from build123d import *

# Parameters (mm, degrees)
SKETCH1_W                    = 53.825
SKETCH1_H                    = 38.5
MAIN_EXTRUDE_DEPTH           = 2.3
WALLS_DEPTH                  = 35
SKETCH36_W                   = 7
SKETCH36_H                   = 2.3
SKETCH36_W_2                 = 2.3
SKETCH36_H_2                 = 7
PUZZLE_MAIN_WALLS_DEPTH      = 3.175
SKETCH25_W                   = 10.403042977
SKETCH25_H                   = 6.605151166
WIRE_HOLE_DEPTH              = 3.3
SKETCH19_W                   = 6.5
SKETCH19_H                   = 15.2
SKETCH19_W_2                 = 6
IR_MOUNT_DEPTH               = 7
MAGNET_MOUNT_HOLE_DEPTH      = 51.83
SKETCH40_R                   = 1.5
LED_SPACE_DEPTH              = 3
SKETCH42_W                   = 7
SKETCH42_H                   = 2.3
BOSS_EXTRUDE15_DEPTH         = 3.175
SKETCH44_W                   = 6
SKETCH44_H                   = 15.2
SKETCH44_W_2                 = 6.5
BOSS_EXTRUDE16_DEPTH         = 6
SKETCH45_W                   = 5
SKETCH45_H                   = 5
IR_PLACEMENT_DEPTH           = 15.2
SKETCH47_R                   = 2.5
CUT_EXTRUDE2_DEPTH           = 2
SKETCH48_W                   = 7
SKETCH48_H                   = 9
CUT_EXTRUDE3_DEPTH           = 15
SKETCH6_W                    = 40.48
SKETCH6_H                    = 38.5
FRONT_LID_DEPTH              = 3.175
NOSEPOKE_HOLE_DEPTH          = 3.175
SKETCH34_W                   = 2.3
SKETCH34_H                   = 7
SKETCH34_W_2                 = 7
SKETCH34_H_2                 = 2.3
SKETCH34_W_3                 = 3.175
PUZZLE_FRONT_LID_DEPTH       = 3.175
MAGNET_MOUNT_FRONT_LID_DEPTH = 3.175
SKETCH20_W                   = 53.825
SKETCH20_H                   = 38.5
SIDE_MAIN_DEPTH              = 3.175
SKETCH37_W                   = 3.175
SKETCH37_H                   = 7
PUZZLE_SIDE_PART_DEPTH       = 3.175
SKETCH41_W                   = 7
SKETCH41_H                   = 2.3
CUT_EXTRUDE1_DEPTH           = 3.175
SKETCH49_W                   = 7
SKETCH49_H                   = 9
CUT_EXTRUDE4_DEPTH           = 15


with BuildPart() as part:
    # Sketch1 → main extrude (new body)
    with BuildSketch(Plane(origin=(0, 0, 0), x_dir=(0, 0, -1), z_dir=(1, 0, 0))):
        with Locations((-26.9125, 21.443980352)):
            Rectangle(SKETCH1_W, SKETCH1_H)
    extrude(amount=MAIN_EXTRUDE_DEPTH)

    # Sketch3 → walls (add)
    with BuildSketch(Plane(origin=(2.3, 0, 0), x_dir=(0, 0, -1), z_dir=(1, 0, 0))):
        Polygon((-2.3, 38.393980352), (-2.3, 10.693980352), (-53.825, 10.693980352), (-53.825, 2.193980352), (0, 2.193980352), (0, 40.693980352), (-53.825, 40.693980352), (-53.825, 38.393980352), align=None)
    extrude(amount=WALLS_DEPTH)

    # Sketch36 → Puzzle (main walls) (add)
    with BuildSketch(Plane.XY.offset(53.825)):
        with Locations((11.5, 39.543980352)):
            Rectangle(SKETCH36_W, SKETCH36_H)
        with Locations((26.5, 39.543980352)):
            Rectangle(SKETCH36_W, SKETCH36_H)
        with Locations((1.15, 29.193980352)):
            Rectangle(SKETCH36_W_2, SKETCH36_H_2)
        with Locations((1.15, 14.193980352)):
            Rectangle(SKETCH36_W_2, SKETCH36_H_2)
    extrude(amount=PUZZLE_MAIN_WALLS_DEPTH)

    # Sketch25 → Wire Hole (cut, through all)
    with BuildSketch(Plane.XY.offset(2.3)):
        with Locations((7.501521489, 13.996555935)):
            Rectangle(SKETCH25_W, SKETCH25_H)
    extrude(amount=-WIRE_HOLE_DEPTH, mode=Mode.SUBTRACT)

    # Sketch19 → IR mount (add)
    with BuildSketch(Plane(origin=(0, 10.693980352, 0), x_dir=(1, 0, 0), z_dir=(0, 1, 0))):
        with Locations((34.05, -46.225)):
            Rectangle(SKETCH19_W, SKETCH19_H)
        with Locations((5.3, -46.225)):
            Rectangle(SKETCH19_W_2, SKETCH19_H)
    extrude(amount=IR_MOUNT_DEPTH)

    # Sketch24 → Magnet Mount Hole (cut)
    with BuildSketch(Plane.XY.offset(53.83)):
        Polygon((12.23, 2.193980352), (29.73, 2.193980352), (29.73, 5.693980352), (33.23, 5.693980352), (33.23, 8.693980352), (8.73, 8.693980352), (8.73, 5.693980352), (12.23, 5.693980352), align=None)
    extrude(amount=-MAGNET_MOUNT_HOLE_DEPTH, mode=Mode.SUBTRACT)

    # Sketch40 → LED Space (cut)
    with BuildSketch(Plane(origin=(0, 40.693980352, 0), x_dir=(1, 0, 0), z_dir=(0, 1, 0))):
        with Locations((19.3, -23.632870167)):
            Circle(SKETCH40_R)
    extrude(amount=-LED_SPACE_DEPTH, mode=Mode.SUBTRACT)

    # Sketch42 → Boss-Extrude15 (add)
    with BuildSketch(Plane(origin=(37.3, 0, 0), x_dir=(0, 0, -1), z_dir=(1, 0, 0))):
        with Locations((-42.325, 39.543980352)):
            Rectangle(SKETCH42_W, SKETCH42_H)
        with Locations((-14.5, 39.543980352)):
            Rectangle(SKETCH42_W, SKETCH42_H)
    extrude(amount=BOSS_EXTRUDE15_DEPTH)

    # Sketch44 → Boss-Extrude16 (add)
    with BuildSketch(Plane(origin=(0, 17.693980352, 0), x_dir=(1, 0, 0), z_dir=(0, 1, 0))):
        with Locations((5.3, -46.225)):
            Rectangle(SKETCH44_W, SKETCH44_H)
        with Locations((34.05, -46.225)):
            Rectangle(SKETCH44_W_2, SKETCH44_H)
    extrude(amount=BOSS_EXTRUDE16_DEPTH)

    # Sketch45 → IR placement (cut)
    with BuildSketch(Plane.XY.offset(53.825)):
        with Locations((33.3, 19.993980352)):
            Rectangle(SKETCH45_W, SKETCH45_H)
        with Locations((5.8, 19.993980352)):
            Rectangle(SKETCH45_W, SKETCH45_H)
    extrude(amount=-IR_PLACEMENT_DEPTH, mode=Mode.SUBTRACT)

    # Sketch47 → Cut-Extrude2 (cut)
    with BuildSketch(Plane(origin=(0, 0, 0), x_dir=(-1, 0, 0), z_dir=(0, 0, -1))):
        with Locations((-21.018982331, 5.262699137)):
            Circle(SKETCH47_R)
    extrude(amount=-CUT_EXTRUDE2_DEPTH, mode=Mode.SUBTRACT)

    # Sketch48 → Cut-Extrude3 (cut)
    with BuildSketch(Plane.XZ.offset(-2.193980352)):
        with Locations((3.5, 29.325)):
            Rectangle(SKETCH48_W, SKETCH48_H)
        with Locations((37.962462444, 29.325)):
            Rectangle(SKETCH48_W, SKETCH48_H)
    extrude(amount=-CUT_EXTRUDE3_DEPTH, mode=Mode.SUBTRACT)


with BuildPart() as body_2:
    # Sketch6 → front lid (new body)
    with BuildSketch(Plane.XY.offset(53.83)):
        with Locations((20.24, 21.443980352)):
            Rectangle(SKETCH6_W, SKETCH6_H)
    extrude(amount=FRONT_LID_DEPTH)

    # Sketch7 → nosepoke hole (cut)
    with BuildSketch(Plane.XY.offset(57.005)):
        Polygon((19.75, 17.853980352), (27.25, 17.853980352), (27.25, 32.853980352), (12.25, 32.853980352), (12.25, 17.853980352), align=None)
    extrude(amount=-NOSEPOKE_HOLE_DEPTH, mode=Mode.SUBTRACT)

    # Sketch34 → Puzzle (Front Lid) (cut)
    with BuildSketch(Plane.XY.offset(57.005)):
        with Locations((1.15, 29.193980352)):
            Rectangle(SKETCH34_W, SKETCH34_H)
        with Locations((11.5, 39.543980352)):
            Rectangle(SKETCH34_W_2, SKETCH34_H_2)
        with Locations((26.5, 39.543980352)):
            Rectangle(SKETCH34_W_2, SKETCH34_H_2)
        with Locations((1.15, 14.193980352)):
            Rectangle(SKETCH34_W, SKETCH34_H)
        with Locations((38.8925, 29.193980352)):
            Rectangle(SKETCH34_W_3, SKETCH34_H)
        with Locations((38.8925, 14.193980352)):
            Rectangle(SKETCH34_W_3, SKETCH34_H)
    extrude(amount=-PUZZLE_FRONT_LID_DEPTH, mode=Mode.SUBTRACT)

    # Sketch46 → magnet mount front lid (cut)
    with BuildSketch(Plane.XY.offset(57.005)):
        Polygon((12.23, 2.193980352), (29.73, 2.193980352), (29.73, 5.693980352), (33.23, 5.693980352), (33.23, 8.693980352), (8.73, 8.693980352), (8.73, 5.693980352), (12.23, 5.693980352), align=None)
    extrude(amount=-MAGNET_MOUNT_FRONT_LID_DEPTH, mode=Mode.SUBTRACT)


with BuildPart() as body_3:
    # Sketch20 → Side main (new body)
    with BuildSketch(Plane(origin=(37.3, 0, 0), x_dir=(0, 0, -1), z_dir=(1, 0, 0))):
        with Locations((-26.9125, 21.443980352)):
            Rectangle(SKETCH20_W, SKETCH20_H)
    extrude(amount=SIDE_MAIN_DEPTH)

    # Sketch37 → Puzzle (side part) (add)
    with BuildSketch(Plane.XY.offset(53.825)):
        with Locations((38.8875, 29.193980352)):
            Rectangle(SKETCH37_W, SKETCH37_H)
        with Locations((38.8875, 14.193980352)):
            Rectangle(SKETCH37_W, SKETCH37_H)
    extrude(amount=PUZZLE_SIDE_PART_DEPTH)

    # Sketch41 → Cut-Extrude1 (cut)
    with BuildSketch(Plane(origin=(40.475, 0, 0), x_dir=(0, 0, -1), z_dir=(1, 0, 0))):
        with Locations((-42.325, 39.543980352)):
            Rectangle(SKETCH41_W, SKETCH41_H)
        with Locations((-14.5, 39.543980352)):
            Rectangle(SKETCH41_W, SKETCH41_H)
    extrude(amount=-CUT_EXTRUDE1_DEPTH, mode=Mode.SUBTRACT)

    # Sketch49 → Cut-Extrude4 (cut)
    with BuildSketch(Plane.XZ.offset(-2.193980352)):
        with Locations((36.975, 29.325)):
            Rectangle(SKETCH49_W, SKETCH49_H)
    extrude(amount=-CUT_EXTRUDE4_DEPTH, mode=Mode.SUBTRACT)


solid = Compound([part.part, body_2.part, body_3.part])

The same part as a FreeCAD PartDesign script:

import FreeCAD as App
import Part
import Sketcher


def add_polygon(sketch, points):
    """Adds a closed chain of lines whose ends are joined by coincident constraints."""
    first, n = sketch.GeometryCount, len(points)
    for a, b in zip(points, points[1:] + points[:1]):
        sketch.addGeometry(Part.LineSegment(App.Vector(*a, 0), App.Vector(*b, 0)), False)
    for i in range(n):
        sketch.addConstraint(Sketcher.Constraint("Coincident", first + i, 2, first + (i + 1) % n, 1))

doc = App.newDocument("Part")
body = doc.addObject("PartDesign::Body", "Body")

# Sketch on YZ plane
sketch1 = doc.addObject("Sketcher::SketchObject", "Sketch")
body.addObject(sketch1)
sketch1.AttachmentSupport = (doc.YZ_Plane, [""])
sketch1.MapMode = "FlatFace"
add_polygon(sketch1, [(41, 54), (2, 54), (2, 0), (41, 0)])  # lines 0-3
sketch1.addConstraint([
    Sketcher.Constraint("Horizontal", 0),
    Sketcher.Constraint("Vertical", 1),
    Sketcher.Constraint("Horizontal", 2),
    Sketcher.Constraint("Vertical", 3),
    Sketcher.Constraint("PointOnObject", 1, 2, -1),
    Sketcher.Constraint("DistanceX", 0, 2, 0, 1, 38.5),
    Sketcher.Constraint("DistanceY", 1, 2, 1, 1, 53.825),
    Sketcher.Constraint("DistanceX", -1, 1, 0, 2, 2.19398),
])
pad1 = doc.addObject("PartDesign::Pad", "Pad")
body.addObject(pad1)
pad1.Profile = sketch1
pad1.Length = 2.3

# Sketch on YZ plane
sketch2 = doc.addObject("Sketcher::SketchObject", "Sketch001")
body.addObject(sketch2)
sketch2.AttachmentSupport = (doc.YZ_Plane, [""])
sketch2.MapMode = "FlatFace"
sketch2.AttachmentOffset = App.Placement(App.Vector(0, 0, 2.3), App.Rotation())
add_polygon(sketch2, [(38.4, 2.3), (10.7, 2.3), (10.7, 53.8), (2.2, 53.8), (2.2, 0), (40.7, 0), (40.7, 53.8), (38.4, 53.8)])  # lines 0-7
sketch2.addConstraint([
    Sketcher.Constraint("Horizontal", 0),
    Sketcher.Constraint("Vertical", 1),
    Sketcher.Constraint("Horizontal", 2),
    Sketcher.Constraint("Vertical", 3),
    Sketcher.Constraint("Horizontal", 4),
    Sketcher.Constraint("Vertical", 5),
    Sketcher.Constraint("Horizontal", 6),
    Sketcher.Constraint("Vertical", 7),
    Sketcher.Constraint("PointOnObject", 3, 2, -1),
    Sketcher.Constraint("Horizontal", 2, 2, 5, 2),
    Sketcher.Constraint("DistanceX", 0, 2, 0, 1, 27.7),
    Sketcher.Constraint("DistanceX", 2, 2, 2, 1, 8.5),
    Sketcher.Constraint("DistanceX", 4, 1, 4, 2, 38.5),
    Sketcher.Constraint("DistanceY", -1, 1, 0, 2, 2.3),
    Sketcher.Constraint("DistanceY", 1, 1, 1, 2, 51.525),
    Sketcher.Constraint("DistanceX", -1, 1, 0, 2, 10.69398),
])
pad2 = doc.addObject("PartDesign::Pad", "Pad001")
body.addObject(pad2)
pad2.Profile = sketch2
pad2.Length = 35

# Sketch on XY plane
sketch3 = doc.addObject("Sketcher::SketchObject", "Sketch002")
body.addObject(sketch3)
sketch3.AttachmentSupport = (doc.XY_Plane, [""])
sketch3.MapMode = "FlatFace"
sketch3.AttachmentOffset = App.Placement(App.Vector(0, 0, 53.825), App.Rotation())
add_polygon(sketch3, [(8, 40.7), (8, 38.4), (15, 38.4), (15, 40.7)])  # lines 0-3
add_polygon(sketch3, [(23, 40.7), (23, 38.4), (30, 38.4), (30, 40.7)])  # lines 4-7
add_polygon(sketch3, [(0, 32.7), (0, 25.7), (2.3, 25.7), (2.3, 32.7)])  # lines 8-11
add_polygon(sketch3, [(0, 17.7), (0, 10.7), (2.3, 10.7), (2.3, 17.7)])  # lines 12-15
sketch3.addConstraint([
    Sketcher.Constraint("Vertical", 0),
    Sketcher.Constraint("Horizontal", 1),
    Sketcher.Constraint("Vertical", 2),
    Sketcher.Constraint("Horizontal", 3),
    Sketcher.Constraint("Vertical", 4),
    Sketcher.Constraint("Horizontal", 5),
    Sketcher.Constraint("Vertical", 6),
    Sketcher.Constraint("Horizontal", 7),
    Sketcher.Constraint("Vertical", 8),
    Sketcher.Constraint("Horizontal", 9),
    Sketcher.Constraint("Vertical", 10),
    Sketcher.Constraint("Horizontal", 11),
    Sketcher.Constraint("Vertical", 12),
    Sketcher.Constraint("Horizontal", 13),
    Sketcher.Constraint("Vertical", 14),
    Sketcher.Constraint("Horizontal", 15),
    Sketcher.Constraint("PointOnObject", 8, 2, -2),
    Sketcher.Constraint("PointOnObject", 12, 2, -2),
    Sketcher.Constraint("Horizontal", 1, 2, 4, 2),
    Sketcher.Constraint("Horizontal", 3, 2, 6, 2),
    Sketcher.Constraint("Vertical", 10, 2, 13, 2),
    Sketcher.Constraint("Equal", 3, 5),
    Sketcher.Constraint("Equal", 15, 0),
    Sketcher.Constraint("Equal", 7, 8),
    Sketcher.Constraint("Equal", 10, 12),
    Sketcher.Constraint("DistanceX", 1, 1, 1, 2, 7.0),
    Sketcher.Constraint("DistanceX", 9, 1, 9, 2, 2.3),
    Sketcher.Constraint("DistanceX", -1, 1, 0, 2, 8.0),
    Sketcher.Constraint("DistanceX", -1, 1, 4, 2, 23.0),
    Sketcher.Constraint("DistanceY", 8, 2, 3, 2, 15.0),
    Sketcher.Constraint("DistanceY", 12, 2, 8, 2, 15.0),
    Sketcher.Constraint("DistanceY", -1, 1, 0, 2, 38.39398),
])
pad3 = doc.addObject("PartDesign::Pad", "Pad002")
body.addObject(pad3)
pad3.Profile = sketch3
pad3.Length = 3.175

# Sketch on XY plane
sketch4 = doc.addObject("Sketcher::SketchObject", "Sketch003")
body.addObject(sketch4)
sketch4.AttachmentSupport = (doc.XY_Plane, [""])
sketch4.MapMode = "FlatFace"
sketch4.AttachmentOffset = App.Placement(App.Vector(0, 0, 2.3), App.Rotation())
add_polygon(sketch4, [(2, 17), (2, 11), (13, 11), (13, 17)])  # lines 0-3
sketch4.addConstraint([
    Sketcher.Constraint("Vertical", 0),
    Sketcher.Constraint("Horizontal", 1),
    Sketcher.Constraint("Vertical", 2),
    Sketcher.Constraint("Horizontal", 3),
    Sketcher.Constraint("DistanceX", -1, 1, 0, 2, 2.3),
    Sketcher.Constraint("DistanceY", 0, 2, 0, 1, 6.605151),
    Sketcher.Constraint("DistanceX", 1, 1, 1, 2, 10.403043),
    Sketcher.Constraint("DistanceY", -1, 1, 0, 2, 10.69398),
])
pocket1 = doc.addObject("PartDesign::Pocket", "Pocket")
body.addObject(pocket1)
pocket1.Profile = sketch4
pocket1.Type = "ThroughAll"

# Sketch on XZ plane
sketch5 = doc.addObject("Sketcher::SketchObject", "Sketch004")
body.addObject(sketch5)
sketch5.AttachmentSupport = (doc.XZ_Plane, [""])
sketch5.MapMode = "FlatFace"
sketch5.AttachmentOffset = App.Placement(App.Vector(0, 0, -10.69398), App.Rotation())
add_polygon(sketch5, [(31, 39), (31, 54), (37, 54), (37, 39)])  # lines 0-3
add_polygon(sketch5, [(2, 39), (2, 54), (8, 54), (8, 39)])  # lines 4-7
sketch5.addConstraint([
    Sketcher.Constraint("Vertical", 0),
    Sketcher.Constraint("Horizontal", 1),
    Sketcher.Constraint("Vertical", 2),
    Sketcher.Constraint("Horizontal", 3),
    Sketcher.Constraint("Vertical", 4),
    Sketcher.Constraint("Horizontal", 5),
    Sketcher.Constraint("Vertical", 6),
    Sketcher.Constraint("Horizontal", 7),
    Sketcher.Constraint("Horizontal", 1, 2, 4, 2),
    Sketcher.Constraint("Horizontal", 3, 2, 6, 2),
    Sketcher.Constraint("DistanceX", 5, 1, 5, 2, 6.0),
    Sketcher.Constraint("DistanceX", 1, 1, 1, 2, 6.5),
    Sketcher.Constraint("DistanceY", 0, 1, 0, 2, 15.2),
    Sketcher.Constraint("DistanceX", 4, 2, 1, 2, 35.0),
    Sketcher.Constraint("DistanceX", -1, 1, 0, 2, 30.8),
    Sketcher.Constraint("DistanceY", -1, 1, 0, 2, 53.825),
])
pad4 = doc.addObject("PartDesign::Pad", "Pad003")
body.addObject(pad4)
pad4.Profile = sketch5
pad4.Length = 7
pad4.Reversed = True

# Sketch on XY plane
sketch6 = doc.addObject("Sketcher::SketchObject", "Sketch005")
body.addObject(sketch6)
sketch6.AttachmentSupport = (doc.XY_Plane, [""])
sketch6.MapMode = "FlatFace"
sketch6.AttachmentOffset = App.Placement(App.Vector(0, 0, 53.83), App.Rotation())
add_polygon(sketch6, [(12.2, 2.2), (29.7, 2.2), (29.7, 5.7), (33.2, 5.7), (33.2, 8.7), (8.7, 8.7), (8.7, 5.7), (12.2, 5.7)])  # lines 0-7
sketch6.addConstraint([
    Sketcher.Constraint("Horizontal", 0),
    Sketcher.Constraint("Vertical", 1),
    Sketcher.Constraint("Horizontal", 2),
    Sketcher.Constraint("Vertical", 3),
    Sketcher.Constraint("Horizontal", 4),
    Sketcher.Constraint("Vertical", 5),
    Sketcher.Constraint("Horizontal", 6),
    Sketcher.Constraint("Vertical", 7),
    Sketcher.Constraint("Horizontal", 2, 2, 5, 2),
    Sketcher.Constraint("Equal", 2, 6),
    Sketcher.Constraint("Equal", 6, 1),
    Sketcher.Constraint("DistanceY", 3, 1, 3, 2, 3.0),
    Sketcher.Constraint("DistanceX", 0, 1, 0, 2, 17.5),
    Sketcher.Constraint("DistanceX", 2, 1, 2, 2, 3.5),
    Sketcher.Constraint("DistanceX", -1, 1, 0, 2, 29.73),
    Sketcher.Constraint("DistanceY", -1, 1, 0, 2, 2.19398),
])
pocket2 = doc.addObject("PartDesign::Pocket", "Pocket001")
body.addObject(pocket2)
pocket2.Profile = sketch6
pocket2.Length = 51.83

# Sketch on XZ plane
sketch7 = doc.addObject("Sketcher::SketchObject", "Sketch006")
body.addObject(sketch7)
sketch7.AttachmentSupport = (doc.XZ_Plane, [""])
sketch7.MapMode = "FlatFace"
sketch7.AttachmentOffset = App.Placement(App.Vector(0, 0, -40.69398), App.Rotation())
sketch7.addGeometry(Part.Circle(App.Vector(19.3, 23.6, 0), App.Vector(0, 0, 1), 1.5), False)
sketch7.addConstraint([
    Sketcher.Constraint("Diameter", 0, 3.0),
    Sketcher.Constraint("DistanceX", -1, 1, 0, 3, 19.3),
    Sketcher.Constraint("DistanceY", -1, 1, 0, 3, 23.63287),
])
pocket3 = doc.addObject("PartDesign::Pocket", "Pocket002")
body.addObject(pocket3)
pocket3.Profile = sketch7
pocket3.Length = 3
pocket3.Reversed = True

# Sketch on YZ plane
sketch8 = doc.addObject("Sketcher::SketchObject", "Sketch007")
body.addObject(sketch8)
sketch8.AttachmentSupport = (doc.YZ_Plane, [""])
sketch8.MapMode = "FlatFace"
sketch8.AttachmentOffset = App.Placement(App.Vector(0, 0, 37.3), App.Rotation())
add_polygon(sketch8, [(40.7, 45.8), (38.4, 45.8), (38.4, 38.8), (40.7, 38.8)])  # lines 0-3
add_polygon(sketch8, [(40.7, 18), (38.4, 18), (38.4, 11), (40.7, 11)])  # lines 4-7
sketch8.addConstraint([
    Sketcher.Constraint("Horizontal", 0),
    Sketcher.Constraint("Vertical", 1),
    Sketcher.Constraint("Horizontal", 2),
    Sketcher.Constraint("Vertical", 3),
    Sketcher.Constraint("Horizontal", 4),
    Sketcher.Constraint("Vertical", 5),
    Sketcher.Constraint("Horizontal", 6),
    Sketcher.Constraint("Vertical", 7),
    Sketcher.Constraint("Vertical", 1, 2, 4, 2),
    Sketcher.Constraint("Vertical", 3, 2, 6, 2),
    Sketcher.Constraint("Equal", 3, 5),
    Sketcher.Constraint("DistanceY", 1, 2, 1, 1, 7.0),
    Sketcher.Constraint("DistanceX", 0, 2, 0, 1, 2.3),
    Sketcher.Constraint("DistanceY", -1, 1, 4, 2, 18.0),
    Sketcher.Constraint("DistanceY", -1, 1, 0, 2, 45.825),
    Sketcher.Constraint("DistanceX", -1, 1, 0, 2, 38.39398),
])
pad5 = doc.addObject("PartDesign::Pad", "Pad004")
body.addObject(pad5)
pad5.Profile = sketch8
pad5.Length = 3.175

# Sketch on XZ plane
sketch9 = doc.addObject("Sketcher::SketchObject", "Sketch008")
body.addObject(sketch9)
sketch9.AttachmentSupport = (doc.XZ_Plane, [""])
sketch9.MapMode = "FlatFace"
sketch9.AttachmentOffset = App.Placement(App.Vector(0, 0, -17.69398), App.Rotation())
add_polygon(sketch9, [(2, 39), (2, 54), (8, 54), (8, 39)])  # lines 0-3
add_polygon(sketch9, [(31, 39), (31, 54), (37, 54), (37, 39)])  # lines 4-7
sketch9.addConstraint([
    Sketcher.Constraint("Vertical", 0),
    Sketcher.Constraint("Horizontal", 1),
    Sketcher.Constraint("Vertical", 2),
    Sketcher.Constraint("Horizontal", 3),
    Sketcher.Constraint("Vertical", 4),
    Sketcher.Constraint("Horizontal", 5),
    Sketcher.Constraint("Vertical", 6),
    Sketcher.Constraint("Horizontal", 7),
    Sketcher.Constraint("Horizontal", 1, 2, 4, 2),
    Sketcher.Constraint("Horizontal", 3, 2, 6, 2),
    Sketcher.Constraint("DistanceX", 1, 1, 1, 2, 6.0),
    Sketcher.Constraint("DistanceX", 5, 1, 5, 2, 6.5),
    Sketcher.Constraint("DistanceY", 0, 1, 0, 2, 15.2),
    Sketcher.Constraint("DistanceX", 1, 2, 5, 2, 29.0),
    Sketcher.Constraint("DistanceX", -1, 1, 0, 2, 2.3),
    Sketcher.Constraint("DistanceY", -1, 1, 0, 2, 53.825),
])
pad6 = doc.addObject("PartDesign::Pad", "Pad005")
body.addObject(pad6)
pad6.Profile = sketch9
pad6.Length = 6
pad6.Reversed = True

# Sketch on XY plane
sketch10 = doc.addObject("Sketcher::SketchObject", "Sketch009")
body.addObject(sketch10)
sketch10.AttachmentSupport = (doc.XY_Plane, [""])
sketch10.MapMode = "FlatFace"
sketch10.AttachmentOffset = App.Placement(App.Vector(0, 0, 53.825), App.Rotation())
add_polygon(sketch10, [(30.8, 22.5), (30.8, 17.5), (35.8, 17.5), (35.8, 22.5)])  # lines 0-3
add_polygon(sketch10, [(3.3, 22.5), (3.3, 17.5), (8.3, 17.5), (8.3, 22.5)])  # lines 4-7
sketch10.addConstraint([
    Sketcher.Constraint("Vertical", 0),
    Sketcher.Constraint("Horizontal", 1),
    Sketcher.Constraint("Vertical", 2),
    Sketcher.Constraint("Horizontal", 3),
    Sketcher.Constraint("Vertical", 4),
    Sketcher.Constraint("Horizontal", 5),
    Sketcher.Constraint("Vertical", 6),
    Sketcher.Constraint("Horizontal", 7),
    Sketcher.Constraint("Horizontal", 1, 2, 4, 2),
    Sketcher.Constraint("Horizontal", 3, 2, 6, 2),
    Sketcher.Constraint("Equal", 3, 5),
    Sketcher.Constraint("Equal", 7, 0),
    Sketcher.Constraint("DistanceX", 1, 1, 1, 2, 5.0),
    Sketcher.Constraint("DistanceX", -1, 1, 0, 2, 30.8),
    Sketcher.Constraint("DistanceX", -1, 1, 4, 2, 3.3),
    Sketcher.Constraint("DistanceY", -1, 1, 0, 2, 17.49398),
])
pocket4 = doc.addObject("PartDesign::Pocket", "Pocket003")
body.addObject(pocket4)
pocket4.Profile = sketch10
pocket4.Length = 15.2

# Sketch on XY plane
sketch11 = doc.addObject("Sketcher::SketchObject", "Sketch010")
body.addObject(sketch11)
sketch11.AttachmentSupport = (doc.XY_Plane, [""])
sketch11.MapMode = "FlatFace"
sketch11.addGeometry(Part.Circle(App.Vector(21, 5.3, 0), App.Vector(0, 0, 1), 2.5), False)
sketch11.addConstraint([
    Sketcher.Constraint("Diameter", 0, 5.0),
    Sketcher.Constraint("DistanceY", -1, 1, 0, 3, 5.262699),
    Sketcher.Constraint("DistanceX", -1, 1, 0, 3, 21.018982),
])
pocket5 = doc.addObject("PartDesign::Pocket", "Pocket004")
body.addObject(pocket5)
pocket5.Profile = sketch11
pocket5.Length = 2
pocket5.Reversed = True

# Sketch on XZ plane
sketch12 = doc.addObject("Sketcher::SketchObject", "Sketch011")
body.addObject(sketch12)
sketch12.AttachmentSupport = (doc.XZ_Plane, [""])
sketch12.MapMode = "FlatFace"
sketch12.AttachmentOffset = App.Placement(App.Vector(0, 0, -2.19398), App.Rotation())
add_polygon(sketch12, [(0, 34), (0, 25), (7, 25), (7, 34)])  # lines 0-3
add_polygon(sketch12, [(34, 34), (34, 25), (41, 25), (41, 34)])  # lines 4-7
sketch12.addConstraint([
    Sketcher.Constraint("Vertical", 0),
    Sketcher.Constraint("Horizontal", 1),
    Sketcher.Constraint("Vertical", 2),
    Sketcher.Constraint("Horizontal", 3),
    Sketcher.Constraint("Vertical", 4),
    Sketcher.Constraint("Horizontal", 5),
    Sketcher.Constraint("Vertical", 6),
    Sketcher.Constraint("Horizontal", 7),
    Sketcher.Constraint("PointOnObject", 0, 2, -2),
    Sketcher.Constraint("Horizontal", 1, 2, 4, 2),
    Sketcher.Constraint("Horizontal", 3, 2, 6, 2),
    Sketcher.Constraint("Equal", 3, 5),
    Sketcher.Constraint("DistanceX", 1, 1, 1, 2, 7.0),
    Sketcher.Constraint("DistanceY", 0, 2, 0, 1, 9.0),
    Sketcher.Constraint("DistanceY", -1, 1, 0, 2, 24.825),
    Sketcher.Constraint("DistanceX", -1, 1, 4, 2, 34.462462),
])
pocket6 = doc.addObject("PartDesign::Pocket", "Pocket005")
body.addObject(pocket6)
pocket6.Profile = sketch12
pocket6.Length = 15
body2 = doc.addObject("PartDesign::Body", "Body001")

# Sketch on XY plane
sketch13 = doc.addObject("Sketcher::SketchObject", "Sketch012")
body2.addObject(sketch13)
sketch13.AttachmentSupport = (doc.getObject("XY_Plane001"), [""])
sketch13.MapMode = "FlatFace"
sketch13.AttachmentOffset = App.Placement(App.Vector(0, 0, 53.83), App.Rotation())
add_polygon(sketch13, [(0, 41), (0, 2), (40, 2), (40, 41)])  # lines 0-3
sketch13.addConstraint([
    Sketcher.Constraint("Vertical", 0),
    Sketcher.Constraint("Horizontal", 1),
    Sketcher.Constraint("Vertical", 2),
    Sketcher.Constraint("Horizontal", 3),
    Sketcher.Constraint("PointOnObject", 0, 2, -2),
    Sketcher.Constraint("DistanceY", 0, 2, 0, 1, 38.5),
    Sketcher.Constraint("DistanceX", 1, 1, 1, 2, 40.48),
    Sketcher.Constraint("DistanceY", -1, 1, 0, 2, 2.19398),
])
pad7 = doc.addObject("PartDesign::Pad", "Pad006")
body2.addObject(pad7)
pad7.Profile = sketch13
pad7.Length = 3.175

# Sketch on XY plane
sketch14 = doc.addObject("Sketcher::SketchObject", "Sketch013")
body2.addObject(sketch14)
sketch14.AttachmentSupport = (doc.getObject("XY_Plane001"), [""])
sketch14.MapMode = "FlatFace"
sketch14.AttachmentOffset = App.Placement(App.Vector(0, 0, 57.005), App.Rotation())
add_polygon(sketch14, [(27, 18), (27, 33), (12, 33), (12, 18)])  # lines 0-3
sketch14.addConstraint([
    Sketcher.Constraint("Vertical", 0),
    Sketcher.Constraint("Horizontal", 1),
    Sketcher.Constraint("Vertical", 2),
    Sketcher.Constraint("Horizontal", 3),
    Sketcher.Constraint("Equal", 3, 0),
    Sketcher.Constraint("DistanceX", 1, 2, 1, 1, 15.0),
    Sketcher.Constraint("DistanceX", -1, 1, 0, 2, 27.25),
    Sketcher.Constraint("DistanceY", -1, 1, 0, 2, 32.85398),
])
pocket7 = doc.addObject("PartDesign::Pocket", "Pocket006")
body2.addObject(pocket7)
pocket7.Profile = sketch14
pocket7.Length = 3.175

# Sketch on XY plane
sketch15 = doc.addObject("Sketcher::SketchObject", "Sketch014")
body2.addObject(sketch15)
sketch15.AttachmentSupport = (doc.getObject("XY_Plane001"), [""])
sketch15.MapMode = "FlatFace"
sketch15.AttachmentOffset = App.Placement(App.Vector(0, 0, 57.005), App.Rotation())
add_polygon(sketch15, [(0, 32.7), (0, 25.7), (2.3, 25.7), (2.3, 32.7)])  # lines 0-3
add_polygon(sketch15, [(8, 40.7), (8, 38.4), (15, 38.4), (15, 40.7)])  # lines 4-7
add_polygon(sketch15, [(23, 40.7), (23, 38.4), (30, 38.4), (30, 40.7)])  # lines 8-11
add_polygon(sketch15, [(0, 17.7), (0, 10.7), (2.3, 10.7), (2.3, 17.7)])  # lines 12-15
add_polygon(sketch15, [(37.3, 32.7), (37.3, 25.7), (40.5, 25.7), (40.5, 32.7)])  # lines 16-19
add_polygon(sketch15, [(37.3, 17.7), (37.3, 10.7), (40.5, 10.7), (40.5, 17.7)])  # lines 20-23
sketch15.addConstraint([
    Sketcher.Constraint("Vertical", 0),
    Sketcher.Constraint("Horizontal", 1),
    Sketcher.Constraint("Vertical", 2),
    Sketcher.Constraint("Horizontal", 3),
    Sketcher.Constraint("Vertical", 4),
    Sketcher.Constraint("Horizontal", 5),
    Sketcher.Constraint("Vertical", 6),
    Sketcher.Constraint("Horizontal", 7),
    Sketcher.Constraint("Vertical", 8),
    Sketcher.Constraint("Horizontal", 9),
    Sketcher.Constraint("Vertical", 10),
    Sketcher.Constraint("Horizontal", 11),
    Sketcher.Constraint("Vertical", 12),
    Sketcher.Constraint("Horizontal", 13),
    Sketcher.Constraint("Vertical", 14),
    Sketcher.Constraint("Horizontal", 15),
    Sketcher.Constraint("Vertical", 16),
    Sketcher.Constraint("Horizontal", 17),
    Sketcher.Constraint("Vertical", 18),
    Sketcher.Constraint("Horizontal", 19),
    Sketcher.Constraint("Vertical", 20),
    Sketcher.Constraint("Horizontal", 21),
    Sketcher.Constraint("Vertical", 22),
    Sketcher.Constraint("Horizontal", 23),
    Sketcher.Constraint("PointOnObject", 0, 2, -2),
    Sketcher.Constraint("PointOnObject", 12, 2, -2),
    Sketcher.Constraint("Horizontal", 5, 2, 8, 2),
    Sketcher.Constraint("Horizontal", 7, 2, 10, 2),
    Sketcher.Constraint("Horizontal", 1, 2, 16, 2),
    Sketcher.Constraint("Horizontal", 3, 2, 18, 2),
    Sketcher.Constraint("Horizontal", 13, 2, 20, 2),
    Sketcher.Constraint("Horizontal", 15, 2, 22, 2),
    Sketcher.Constraint("Vertical", 2, 2, 13, 2),
    Sketcher.Constraint("Vertical", 19, 2, 20, 2),
    Sketcher.Constraint("Vertical", 18, 2, 21, 2),
    Sketcher.Constraint("Equal", 7, 9),
    Sketcher.Constraint("Equal", 11, 0),
    Sketcher.Constraint("Equal", 15, 4),
    Sketcher.Constraint("Equal", 2, 12),
    Sketcher.Constraint("DistanceX", 5, 1, 5, 2, 7.0),
    Sketcher.Constraint("DistanceX", 1, 1, 1, 2, 2.3),
    Sketcher.Constraint("DistanceX", -1, 1, 4, 2, 8.0),
    Sketcher.Constraint("DistanceX", -1, 1, 8, 2, 23.0),
    Sketcher.Constraint("DistanceY", 2, 2, 6, 2, 8.0),
    Sketcher.Constraint("DistanceY", 12, 2, 0, 2, 15.0),
    Sketcher.Constraint("DistanceX", 17, 1, 17, 2, 3.175),
    Sketcher.Constraint("DistanceX", -1, 1, 17, 2, 40.48),
    Sketcher.Constraint("DistanceY", -1, 1, 0, 2, 25.69398),
])
pocket8 = doc.addObject("PartDesign::Pocket", "Pocket007")
body2.addObject(pocket8)
pocket8.Profile = sketch15
pocket8.Length = 3.175

# Sketch on XY plane
sketch16 = doc.addObject("Sketcher::SketchObject", "Sketch015")
body2.addObject(sketch16)
sketch16.AttachmentSupport = (doc.getObject("XY_Plane001"), [""])
sketch16.MapMode = "FlatFace"
sketch16.AttachmentOffset = App.Placement(App.Vector(0, 0, 57.005), App.Rotation())
add_polygon(sketch16, [(12.2, 2.2), (29.7, 2.2), (29.7, 5.7), (33.2, 5.7), (33.2, 8.7), (8.7, 8.7), (8.7, 5.7), (12.2, 5.7)])  # lines 0-7
sketch16.addConstraint([
    Sketcher.Constraint("Horizontal", 0),
    Sketcher.Constraint("Vertical", 1),
    Sketcher.Constraint("Horizontal", 2),
    Sketcher.Constraint("Vertical", 3),
    Sketcher.Constraint("Horizontal", 4),
    Sketcher.Constraint("Vertical", 5),
    Sketcher.Constraint("Horizontal", 6),
    Sketcher.Constraint("Vertical", 7),
    Sketcher.Constraint("Horizontal", 2, 2, 5, 2),
    Sketcher.Constraint("Equal", 2, 6),
    Sketcher.Constraint("Equal", 6, 1),
    Sketcher.Constraint("DistanceY", 3, 1, 3, 2, 3.0),
    Sketcher.Constraint("DistanceX", 0, 1, 0, 2, 17.5),
    Sketcher.Constraint("DistanceX", 2, 1, 2, 2, 3.5),
    Sketcher.Constraint("DistanceX", -1, 1, 0, 2, 29.73),
    Sketcher.Constraint("DistanceY", -1, 1, 0, 2, 2.19398),
])
pocket9 = doc.addObject("PartDesign::Pocket", "Pocket008")
body2.addObject(pocket9)
pocket9.Profile = sketch16
pocket9.Length = 3.175
body3 = doc.addObject("PartDesign::Body", "Body002")

# Sketch on YZ plane
sketch17 = doc.addObject("Sketcher::SketchObject", "Sketch016")
body3.addObject(sketch17)
sketch17.AttachmentSupport = (doc.getObject("YZ_Plane002"), [""])
sketch17.MapMode = "FlatFace"
sketch17.AttachmentOffset = App.Placement(App.Vector(0, 0, 37.3), App.Rotation())
add_polygon(sketch17, [(41, 54), (2, 54), (2, 0), (41, 0)])  # lines 0-3
sketch17.addConstraint([
    Sketcher.Constraint("Horizontal", 0),
    Sketcher.Constraint("Vertical", 1),
    Sketcher.Constraint("Horizontal", 2),
    Sketcher.Constraint("Vertical", 3),
    Sketcher.Constraint("PointOnObject", 1, 2, -1),
    Sketcher.Constraint("DistanceX", 0, 2, 0, 1, 38.5),
    Sketcher.Constraint("DistanceY", 1, 2, 1, 1, 53.825),
    Sketcher.Constraint("DistanceX", -1, 1, 0, 2, 2.19398),
])
pad8 = doc.addObject("PartDesign::Pad", "Pad007")
body3.addObject(pad8)
pad8.Profile = sketch17
pad8.Length = 3.175

# Sketch on XY plane
sketch18 = doc.addObject("Sketcher::SketchObject", "Sketch017")
body3.addObject(sketch18)
sketch18.AttachmentSupport = (doc.getObject("XY_Plane002"), [""])
sketch18.MapMode = "FlatFace"
sketch18.AttachmentOffset = App.Placement(App.Vector(0, 0, 53.825), App.Rotation())
add_polygon(sketch18, [(37.3, 32.7), (37.3, 25.7), (40.5, 25.7), (40.5, 32.7)])  # lines 0-3
add_polygon(sketch18, [(37.3, 17.7), (37.3, 10.7), (40.5, 10.7), (40.5, 17.7)])  # lines 4-7
sketch18.addConstraint([
    Sketcher.Constraint("Vertical", 0),
    Sketcher.Constraint("Horizontal", 1),
    Sketcher.Constraint("Vertical", 2),
    Sketcher.Constraint("Horizontal", 3),
    Sketcher.Constraint("Vertical", 4),
    Sketcher.Constraint("Horizontal", 5),
    Sketcher.Constraint("Vertical", 6),
    Sketcher.Constraint("Horizontal", 7),
    Sketcher.Constraint("Vertical", 3, 2, 4, 2),
    Sketcher.Constraint("Vertical", 2, 2, 5, 2),
    Sketcher.Constraint("Equal", 2, 4),
    Sketcher.Constraint("DistanceY", 0, 2, 0, 1, 7.0),
    Sketcher.Constraint("DistanceY", 4, 2, 0, 2, 15.0),
    Sketcher.Constraint("DistanceX", -1, 1, 0, 2, 37.3),
    Sketcher.Constraint("DistanceX", 1, 1, 1, 2, 3.175),
    Sketcher.Constraint("DistanceY", -1, 1, 0, 2, 25.69398),
])
pad9 = doc.addObject("PartDesign::Pad", "Pad008")
body3.addObject(pad9)
pad9.Profile = sketch18
pad9.Length = 3.175

# Sketch on YZ plane
sketch19 = doc.addObject("Sketcher::SketchObject", "Sketch018")
body3.addObject(sketch19)
sketch19.AttachmentSupport = (doc.getObject("YZ_Plane002"), [""])
sketch19.MapMode = "FlatFace"
sketch19.AttachmentOffset = App.Placement(App.Vector(0, 0, 40.475), App.Rotation())
add_polygon(sketch19, [(40.7, 45.8), (38.4, 45.8), (38.4, 38.8), (40.7, 38.8)])  # lines 0-3
add_polygon(sketch19, [(40.7, 18), (38.4, 18), (38.4, 11), (40.7, 11)])  # lines 4-7
sketch19.addConstraint([
    Sketcher.Constraint("Horizontal", 0),
    Sketcher.Constraint("Vertical", 1),
    Sketcher.Constraint("Horizontal", 2),
    Sketcher.Constraint("Vertical", 3),
    Sketcher.Constraint("Horizontal", 4),
    Sketcher.Constraint("Vertical", 5),
    Sketcher.Constraint("Horizontal", 6),
    Sketcher.Constraint("Vertical", 7),
    Sketcher.Constraint("Vertical", 1, 2, 4, 2),
    Sketcher.Constraint("Vertical", 3, 2, 6, 2),
    Sketcher.Constraint("Equal", 3, 5),
    Sketcher.Constraint("DistanceY", 1, 2, 1, 1, 7.0),
    Sketcher.Constraint("DistanceX", 0, 2, 0, 1, 2.3),
    Sketcher.Constraint("DistanceY", -1, 1, 4, 2, 18.0),
    Sketcher.Constraint("DistanceY", -1, 1, 0, 2, 45.825),
    Sketcher.Constraint("DistanceX", -1, 1, 0, 2, 38.39398),
])
pocket10 = doc.addObject("PartDesign::Pocket", "Pocket009")
body3.addObject(pocket10)
pocket10.Profile = sketch19
pocket10.Length = 3.175

# Sketch on XZ plane
sketch20 = doc.addObject("Sketcher::SketchObject", "Sketch019")
body3.addObject(sketch20)
sketch20.AttachmentSupport = (doc.getObject("XZ_Plane002"), [""])
sketch20.MapMode = "FlatFace"
sketch20.AttachmentOffset = App.Placement(App.Vector(0, 0, -2.19398), App.Rotation())
add_polygon(sketch20, [(33, 34), (33, 25), (40, 25), (40, 34)])  # lines 0-3
sketch20.addConstraint([
    Sketcher.Constraint("Vertical", 0),
    Sketcher.Constraint("Horizontal", 1),
    Sketcher.Constraint("Vertical", 2),
    Sketcher.Constraint("Horizontal", 3),
    Sketcher.Constraint("DistanceX", 1, 1, 1, 2, 7.0),
    Sketcher.Constraint("DistanceY", 0, 2, 0, 1, 9.0),
    Sketcher.Constraint("DistanceX", -1, 1, 0, 2, 33.475),
    Sketcher.Constraint("DistanceY", -1, 1, 0, 2, 24.825),
])
pocket11 = doc.addObject("PartDesign::Pocket", "Pocket010")
body3.addObject(pocket11)
pocket11.Profile = sketch20
pocket11.Length = 15

doc.recompute()
